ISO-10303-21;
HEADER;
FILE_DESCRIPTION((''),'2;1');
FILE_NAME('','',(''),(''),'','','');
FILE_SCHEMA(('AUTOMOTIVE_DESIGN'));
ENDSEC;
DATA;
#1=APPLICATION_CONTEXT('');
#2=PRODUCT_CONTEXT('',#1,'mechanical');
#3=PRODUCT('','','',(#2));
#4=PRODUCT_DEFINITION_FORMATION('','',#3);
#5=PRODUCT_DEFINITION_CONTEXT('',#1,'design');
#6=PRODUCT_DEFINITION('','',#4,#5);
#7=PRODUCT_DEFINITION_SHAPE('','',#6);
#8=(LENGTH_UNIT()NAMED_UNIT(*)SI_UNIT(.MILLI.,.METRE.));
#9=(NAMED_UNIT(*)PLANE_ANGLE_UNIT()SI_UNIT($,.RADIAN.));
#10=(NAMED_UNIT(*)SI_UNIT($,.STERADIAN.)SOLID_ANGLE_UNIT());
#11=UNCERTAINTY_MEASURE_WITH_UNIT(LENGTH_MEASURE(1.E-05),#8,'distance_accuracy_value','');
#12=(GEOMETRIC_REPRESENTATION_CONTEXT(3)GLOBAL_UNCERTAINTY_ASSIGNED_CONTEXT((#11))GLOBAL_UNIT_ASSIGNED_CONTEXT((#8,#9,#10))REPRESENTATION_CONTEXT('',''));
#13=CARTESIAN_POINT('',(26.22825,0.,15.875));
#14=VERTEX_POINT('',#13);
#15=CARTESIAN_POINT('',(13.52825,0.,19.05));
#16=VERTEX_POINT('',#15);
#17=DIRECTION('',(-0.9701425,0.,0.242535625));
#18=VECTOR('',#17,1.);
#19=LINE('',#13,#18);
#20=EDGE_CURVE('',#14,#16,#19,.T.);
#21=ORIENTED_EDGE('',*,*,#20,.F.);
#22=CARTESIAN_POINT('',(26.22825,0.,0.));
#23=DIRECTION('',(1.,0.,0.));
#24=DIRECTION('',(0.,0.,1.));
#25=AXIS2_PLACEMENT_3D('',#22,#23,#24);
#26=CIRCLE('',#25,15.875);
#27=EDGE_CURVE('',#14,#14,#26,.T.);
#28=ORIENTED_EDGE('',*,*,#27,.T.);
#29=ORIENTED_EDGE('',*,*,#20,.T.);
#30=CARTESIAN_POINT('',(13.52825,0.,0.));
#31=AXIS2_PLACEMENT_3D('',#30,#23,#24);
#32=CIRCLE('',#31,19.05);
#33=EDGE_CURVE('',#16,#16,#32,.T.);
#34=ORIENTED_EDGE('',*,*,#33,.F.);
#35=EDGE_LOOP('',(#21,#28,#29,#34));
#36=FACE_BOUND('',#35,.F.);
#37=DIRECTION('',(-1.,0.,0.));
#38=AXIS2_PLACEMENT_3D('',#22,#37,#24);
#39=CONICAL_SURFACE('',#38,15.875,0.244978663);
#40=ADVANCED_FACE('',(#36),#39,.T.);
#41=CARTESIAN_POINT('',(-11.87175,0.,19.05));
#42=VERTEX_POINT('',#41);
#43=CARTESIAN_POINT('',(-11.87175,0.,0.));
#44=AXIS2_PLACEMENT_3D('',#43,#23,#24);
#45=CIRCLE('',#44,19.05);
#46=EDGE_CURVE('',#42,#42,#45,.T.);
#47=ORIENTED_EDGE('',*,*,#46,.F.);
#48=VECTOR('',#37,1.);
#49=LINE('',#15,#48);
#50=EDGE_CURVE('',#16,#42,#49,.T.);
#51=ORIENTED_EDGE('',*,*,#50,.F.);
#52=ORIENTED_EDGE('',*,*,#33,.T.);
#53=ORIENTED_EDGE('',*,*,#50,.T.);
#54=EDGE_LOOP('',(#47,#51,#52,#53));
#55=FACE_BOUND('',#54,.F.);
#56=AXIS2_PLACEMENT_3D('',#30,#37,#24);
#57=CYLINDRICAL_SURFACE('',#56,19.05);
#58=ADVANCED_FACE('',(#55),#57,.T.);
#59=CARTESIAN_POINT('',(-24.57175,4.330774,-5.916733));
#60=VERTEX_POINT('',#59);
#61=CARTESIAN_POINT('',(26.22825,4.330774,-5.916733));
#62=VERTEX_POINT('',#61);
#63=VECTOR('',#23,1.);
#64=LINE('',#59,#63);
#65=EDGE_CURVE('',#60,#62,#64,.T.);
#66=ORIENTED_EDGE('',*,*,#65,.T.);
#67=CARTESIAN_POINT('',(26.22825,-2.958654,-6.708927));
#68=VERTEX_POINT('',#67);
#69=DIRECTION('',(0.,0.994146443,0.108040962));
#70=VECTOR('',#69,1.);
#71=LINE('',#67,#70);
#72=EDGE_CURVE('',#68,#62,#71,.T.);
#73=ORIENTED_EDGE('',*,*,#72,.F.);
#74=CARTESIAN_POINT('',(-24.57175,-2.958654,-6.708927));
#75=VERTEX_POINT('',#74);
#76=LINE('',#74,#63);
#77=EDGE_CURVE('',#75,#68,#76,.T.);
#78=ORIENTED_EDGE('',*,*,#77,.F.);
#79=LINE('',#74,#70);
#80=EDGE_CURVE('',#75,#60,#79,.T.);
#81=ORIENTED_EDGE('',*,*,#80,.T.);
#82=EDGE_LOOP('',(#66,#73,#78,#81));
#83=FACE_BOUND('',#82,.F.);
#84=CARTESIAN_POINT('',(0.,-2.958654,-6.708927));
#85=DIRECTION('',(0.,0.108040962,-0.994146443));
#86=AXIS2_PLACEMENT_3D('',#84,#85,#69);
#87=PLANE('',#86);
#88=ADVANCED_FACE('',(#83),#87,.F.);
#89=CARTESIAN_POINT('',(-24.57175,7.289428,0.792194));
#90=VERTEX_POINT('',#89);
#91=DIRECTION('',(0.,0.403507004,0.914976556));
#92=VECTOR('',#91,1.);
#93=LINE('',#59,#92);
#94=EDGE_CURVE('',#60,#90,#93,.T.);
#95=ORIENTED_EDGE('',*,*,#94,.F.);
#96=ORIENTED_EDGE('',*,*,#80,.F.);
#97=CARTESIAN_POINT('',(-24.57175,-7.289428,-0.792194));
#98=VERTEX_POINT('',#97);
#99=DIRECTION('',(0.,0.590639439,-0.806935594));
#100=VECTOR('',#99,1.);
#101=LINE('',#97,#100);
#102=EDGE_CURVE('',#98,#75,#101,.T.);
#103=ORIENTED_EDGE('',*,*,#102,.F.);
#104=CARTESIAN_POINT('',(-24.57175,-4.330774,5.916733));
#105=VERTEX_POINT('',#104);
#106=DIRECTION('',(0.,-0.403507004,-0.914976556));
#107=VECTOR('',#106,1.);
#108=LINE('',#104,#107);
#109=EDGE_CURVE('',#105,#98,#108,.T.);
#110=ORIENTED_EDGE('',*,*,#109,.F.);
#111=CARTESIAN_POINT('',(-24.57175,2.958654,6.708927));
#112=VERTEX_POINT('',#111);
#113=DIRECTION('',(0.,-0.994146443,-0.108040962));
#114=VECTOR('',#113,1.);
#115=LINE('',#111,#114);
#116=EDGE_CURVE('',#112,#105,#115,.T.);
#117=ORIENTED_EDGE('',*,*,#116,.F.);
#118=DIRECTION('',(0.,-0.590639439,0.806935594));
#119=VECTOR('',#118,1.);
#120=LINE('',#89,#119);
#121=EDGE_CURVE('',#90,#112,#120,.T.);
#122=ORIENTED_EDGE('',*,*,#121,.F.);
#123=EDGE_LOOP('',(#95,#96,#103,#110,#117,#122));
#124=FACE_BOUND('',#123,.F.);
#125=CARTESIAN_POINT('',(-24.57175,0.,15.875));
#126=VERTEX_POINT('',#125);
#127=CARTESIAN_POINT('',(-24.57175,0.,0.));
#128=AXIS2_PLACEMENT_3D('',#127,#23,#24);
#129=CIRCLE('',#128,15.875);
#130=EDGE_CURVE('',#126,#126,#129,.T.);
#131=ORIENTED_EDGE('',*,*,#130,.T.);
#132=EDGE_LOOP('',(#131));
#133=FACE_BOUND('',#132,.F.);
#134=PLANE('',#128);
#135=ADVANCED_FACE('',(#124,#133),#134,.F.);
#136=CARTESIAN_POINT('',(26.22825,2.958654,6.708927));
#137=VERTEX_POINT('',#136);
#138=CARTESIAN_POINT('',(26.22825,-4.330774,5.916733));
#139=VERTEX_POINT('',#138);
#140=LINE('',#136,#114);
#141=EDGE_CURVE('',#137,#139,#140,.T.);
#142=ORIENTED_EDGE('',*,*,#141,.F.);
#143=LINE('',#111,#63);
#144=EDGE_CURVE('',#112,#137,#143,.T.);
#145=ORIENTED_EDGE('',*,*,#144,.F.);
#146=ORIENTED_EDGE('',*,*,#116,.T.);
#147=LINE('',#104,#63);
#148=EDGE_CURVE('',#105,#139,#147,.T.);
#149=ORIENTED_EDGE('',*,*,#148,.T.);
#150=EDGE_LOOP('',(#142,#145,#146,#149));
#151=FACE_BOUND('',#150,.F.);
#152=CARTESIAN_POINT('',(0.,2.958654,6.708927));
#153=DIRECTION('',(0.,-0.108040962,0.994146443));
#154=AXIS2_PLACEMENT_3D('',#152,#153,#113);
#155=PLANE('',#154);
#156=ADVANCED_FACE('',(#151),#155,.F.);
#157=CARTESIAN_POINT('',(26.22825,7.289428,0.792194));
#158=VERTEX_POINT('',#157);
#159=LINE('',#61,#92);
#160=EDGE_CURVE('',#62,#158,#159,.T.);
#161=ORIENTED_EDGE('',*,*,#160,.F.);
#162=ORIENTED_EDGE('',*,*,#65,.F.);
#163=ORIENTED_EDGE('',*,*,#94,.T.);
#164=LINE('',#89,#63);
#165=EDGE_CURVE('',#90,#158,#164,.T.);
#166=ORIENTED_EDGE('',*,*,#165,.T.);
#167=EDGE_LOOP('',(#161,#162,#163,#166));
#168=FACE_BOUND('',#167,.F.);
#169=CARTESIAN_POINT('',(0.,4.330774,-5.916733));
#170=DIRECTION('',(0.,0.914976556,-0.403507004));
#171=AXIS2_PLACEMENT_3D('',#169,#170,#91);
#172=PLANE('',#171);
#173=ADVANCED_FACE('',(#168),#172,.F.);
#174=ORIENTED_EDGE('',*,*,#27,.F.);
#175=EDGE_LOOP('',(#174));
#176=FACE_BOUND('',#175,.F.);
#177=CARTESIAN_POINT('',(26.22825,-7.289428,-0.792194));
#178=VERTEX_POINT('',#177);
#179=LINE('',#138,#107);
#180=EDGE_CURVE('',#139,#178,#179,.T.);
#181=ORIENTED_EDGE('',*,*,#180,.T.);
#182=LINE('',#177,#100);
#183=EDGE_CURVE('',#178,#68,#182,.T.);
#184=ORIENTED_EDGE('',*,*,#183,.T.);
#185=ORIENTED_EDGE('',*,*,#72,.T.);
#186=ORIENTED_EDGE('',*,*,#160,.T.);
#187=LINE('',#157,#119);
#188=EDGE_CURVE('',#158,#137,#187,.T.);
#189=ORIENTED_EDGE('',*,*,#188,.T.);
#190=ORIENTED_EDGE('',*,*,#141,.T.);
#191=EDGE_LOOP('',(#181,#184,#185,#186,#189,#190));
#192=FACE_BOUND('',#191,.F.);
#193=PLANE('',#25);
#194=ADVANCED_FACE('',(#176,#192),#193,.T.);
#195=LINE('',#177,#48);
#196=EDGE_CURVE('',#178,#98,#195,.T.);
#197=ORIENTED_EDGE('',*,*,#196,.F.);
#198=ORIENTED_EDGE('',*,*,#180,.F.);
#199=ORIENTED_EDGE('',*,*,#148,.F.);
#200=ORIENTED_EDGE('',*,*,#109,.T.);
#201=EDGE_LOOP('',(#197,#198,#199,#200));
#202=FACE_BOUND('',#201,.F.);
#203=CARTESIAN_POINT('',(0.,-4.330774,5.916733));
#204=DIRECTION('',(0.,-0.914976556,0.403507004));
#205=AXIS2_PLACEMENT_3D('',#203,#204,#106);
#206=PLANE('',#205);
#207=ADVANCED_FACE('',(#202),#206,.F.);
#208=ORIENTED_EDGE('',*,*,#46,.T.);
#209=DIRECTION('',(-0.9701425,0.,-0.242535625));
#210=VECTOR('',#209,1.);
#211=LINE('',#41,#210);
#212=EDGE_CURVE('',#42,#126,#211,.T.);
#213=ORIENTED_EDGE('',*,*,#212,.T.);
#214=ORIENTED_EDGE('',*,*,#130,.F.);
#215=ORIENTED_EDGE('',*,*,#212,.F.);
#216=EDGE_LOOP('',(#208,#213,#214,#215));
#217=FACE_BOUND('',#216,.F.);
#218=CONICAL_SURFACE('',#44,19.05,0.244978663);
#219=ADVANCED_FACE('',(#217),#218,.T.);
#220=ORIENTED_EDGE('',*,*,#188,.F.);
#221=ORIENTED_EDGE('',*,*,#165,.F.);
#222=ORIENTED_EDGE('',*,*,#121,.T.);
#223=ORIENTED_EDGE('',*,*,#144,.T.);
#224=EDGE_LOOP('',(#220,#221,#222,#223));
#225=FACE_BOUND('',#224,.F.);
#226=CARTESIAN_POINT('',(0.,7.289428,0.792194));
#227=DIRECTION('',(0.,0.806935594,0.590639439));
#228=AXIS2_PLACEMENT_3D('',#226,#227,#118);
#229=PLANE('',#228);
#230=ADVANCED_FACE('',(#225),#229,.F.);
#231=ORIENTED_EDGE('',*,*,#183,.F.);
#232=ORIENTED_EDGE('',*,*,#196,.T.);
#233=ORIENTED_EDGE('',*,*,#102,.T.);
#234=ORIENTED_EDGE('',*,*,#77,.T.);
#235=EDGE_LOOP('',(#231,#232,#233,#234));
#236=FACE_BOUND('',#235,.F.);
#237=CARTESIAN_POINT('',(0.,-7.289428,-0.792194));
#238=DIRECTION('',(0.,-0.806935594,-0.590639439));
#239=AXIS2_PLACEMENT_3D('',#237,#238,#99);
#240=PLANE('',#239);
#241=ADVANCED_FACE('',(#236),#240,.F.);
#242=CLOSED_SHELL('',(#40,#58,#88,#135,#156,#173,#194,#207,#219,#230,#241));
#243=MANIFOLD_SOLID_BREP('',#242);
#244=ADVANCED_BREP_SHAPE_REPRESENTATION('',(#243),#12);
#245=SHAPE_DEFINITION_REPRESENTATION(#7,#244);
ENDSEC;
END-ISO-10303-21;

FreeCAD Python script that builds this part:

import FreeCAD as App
import Part
import Sketcher
from FreeCAD import Vector
Q = App.Units.Quantity

doc = App.newDocument("Part")
body = doc.addObject("PartDesign::Body", "Body")

# Sketch on XZ plane
sketch1 = body.newObject("Sketcher::SketchObject", "Sketch")
sketch1.AttachmentSupport = (doc.getObject("XZ_Plane"), [""])
sketch1.MapMode = "FlatFace"
sketch1.addGeometry(Part.LineSegment(Vector(-25, 16, 0), Vector(-25, 6, 0)), False)
sketch1.addGeometry(Part.LineSegment(Vector(-25, 6, 0), Vector(26, 6, 0)), False)
sketch1.addGeometry(Part.LineSegment(Vector(26, 6, 0), Vector(26, 16, 0)), False)
sketch1.addGeometry(Part.LineSegment(Vector(26, 16, 0), Vector(14, 19, 0)), False)
sketch1.addGeometry(Part.LineSegment(Vector(14, 19, 0), Vector(-12, 19, 0)), False)
sketch1.addGeometry(Part.LineSegment(Vector(-12, 19, 0), Vector(-25, 16, 0)), False)
sketch1.addConstraint(Sketcher.Constraint("Coincident", 0, 2, 1, 1))
sketch1.addConstraint(Sketcher.Constraint("Coincident", 1, 2, 2, 1))
sketch1.addConstraint(Sketcher.Constraint("Coincident", 2, 2, 3, 1))
sketch1.addConstraint(Sketcher.Constraint("Coincident", 3, 2, 4, 1))
sketch1.addConstraint(Sketcher.Constraint("Coincident", 4, 2, 5, 1))
sketch1.addConstraint(Sketcher.Constraint("Coincident", 5, 2, 0, 1))
sketch1.addConstraint(Sketcher.Constraint("Vertical", 0))
sketch1.addConstraint(Sketcher.Constraint("Horizontal", 1))
sketch1.addConstraint(Sketcher.Constraint("Vertical", 2))
sketch1.addConstraint(Sketcher.Constraint("Horizontal", 4))
sketch1.addConstraint(Sketcher.Constraint("Horizontal", 2, 2, 5, 2))
sketch1.addConstraint(Sketcher.Constraint("Equal", 3, 5))
sketch1.addConstraint(Sketcher.Constraint("DistanceX", 1, 1, 1, 2, Q("2 in")))
sketch1.addConstraint(Sketcher.Constraint("DistanceX", 4, 2, 4, 1, Q("1 in")))
sketch1.addConstraint(Sketcher.Constraint("DistanceY", 1, 2, 3, 2, Q("0.5 in")))
sketch1.addConstraint(Sketcher.Constraint("DistanceY", 0, 2, 0, 1, Q("0.375 in")))
sketch1.addConstraint(Sketcher.Constraint("DistanceY", -1, 1, 0, 2, Q("0.25 in")))
sketch1.addConstraint(Sketcher.Constraint("DistanceX", 0, 2, -1, 1, 24.57175))
revolution = body.newObject("PartDesign::Revolution", "Revolution")
revolution.Profile = sketch1
revolution.ReferenceAxis = (sketch1, ["H_Axis"])
revolution.Angle = 360

# Sketch on YZ plane
sketch2 = body.newObject("Sketcher::SketchObject", "Sketch001")
sketch2.AttachmentSupport = (doc.getObject("YZ_Plane"), [""])
sketch2.MapMode = "FlatFace"
sketch2.addGeometry(Part.LineSegment(Vector(7, 1, 0), Vector(3, 7, 0)), False)
sketch2.addGeometry(Part.LineSegment(Vector(3, 7, 0), Vector(-4, 6, 0)), False)
sketch2.addGeometry(Part.LineSegment(Vector(-4, 6, 0), Vector(-7, -1, 0)), False)
sketch2.addGeometry(Part.LineSegment(Vector(-7, -1, 0), Vector(-3, -7, 0)), False)
sketch2.addGeometry(Part.LineSegment(Vector(-3, -7, 0), Vector(4, -6, 0)), False)
sketch2.addGeometry(Part.LineSegment(Vector(4, -6, 0), Vector(7, 1, 0)), False)
sketch2.addConstraint(Sketcher.Constraint("Coincident", 0, 2, 1, 1))
sketch2.addConstraint(Sketcher.Constraint("Coincident", 1, 2, 2, 1))
sketch2.addConstraint(Sketcher.Constraint("Coincident", 2, 2, 3, 1))
sketch2.addConstraint(Sketcher.Constraint("Coincident", 3, 2, 4, 1))
sketch2.addConstraint(Sketcher.Constraint("Coincident", 4, 2, 5, 1))
sketch2.addConstraint(Sketcher.Constraint("Coincident", 5, 2, 0, 1))
sketch2.addConstraint(Sketcher.Constraint("Symmetric", 0, 2, 3, 2, -1, 1))
sketch2.addConstraint(Sketcher.Constraint("Symmetric", 1, 2, 4, 2, -1, 1))
sketch2.addConstraint(Sketcher.Constraint("Symmetric", 2, 2, 5, 2, -1, 1))
sketch2.addConstraint(Sketcher.Constraint("Equal", 0, 1))
sketch2.addConstraint(Sketcher.Constraint("Equal", 1, 2))
sketch2.addConstraint(Sketcher.Constraint("Distance", 0, 7.332348))
sketch2.addConstraint(Sketcher.Constraint("DistanceX", 2, 2, -1, 1, 7.289428))
sketch2.addConstraint(Sketcher.Constraint("DistanceX", 1, 2, 0, 2, 7.289428))
sketch2.addConstraint(Sketcher.Constraint("DistanceY", 2, 2, 0, 2, 7.501121))
pocket1 = body.newObject("PartDesign::Pocket", "Pocket")
pocket1.Profile = sketch2
pocket1.Type = "ThroughAll"
pocket1.Midplane = True

doc.recompute()
